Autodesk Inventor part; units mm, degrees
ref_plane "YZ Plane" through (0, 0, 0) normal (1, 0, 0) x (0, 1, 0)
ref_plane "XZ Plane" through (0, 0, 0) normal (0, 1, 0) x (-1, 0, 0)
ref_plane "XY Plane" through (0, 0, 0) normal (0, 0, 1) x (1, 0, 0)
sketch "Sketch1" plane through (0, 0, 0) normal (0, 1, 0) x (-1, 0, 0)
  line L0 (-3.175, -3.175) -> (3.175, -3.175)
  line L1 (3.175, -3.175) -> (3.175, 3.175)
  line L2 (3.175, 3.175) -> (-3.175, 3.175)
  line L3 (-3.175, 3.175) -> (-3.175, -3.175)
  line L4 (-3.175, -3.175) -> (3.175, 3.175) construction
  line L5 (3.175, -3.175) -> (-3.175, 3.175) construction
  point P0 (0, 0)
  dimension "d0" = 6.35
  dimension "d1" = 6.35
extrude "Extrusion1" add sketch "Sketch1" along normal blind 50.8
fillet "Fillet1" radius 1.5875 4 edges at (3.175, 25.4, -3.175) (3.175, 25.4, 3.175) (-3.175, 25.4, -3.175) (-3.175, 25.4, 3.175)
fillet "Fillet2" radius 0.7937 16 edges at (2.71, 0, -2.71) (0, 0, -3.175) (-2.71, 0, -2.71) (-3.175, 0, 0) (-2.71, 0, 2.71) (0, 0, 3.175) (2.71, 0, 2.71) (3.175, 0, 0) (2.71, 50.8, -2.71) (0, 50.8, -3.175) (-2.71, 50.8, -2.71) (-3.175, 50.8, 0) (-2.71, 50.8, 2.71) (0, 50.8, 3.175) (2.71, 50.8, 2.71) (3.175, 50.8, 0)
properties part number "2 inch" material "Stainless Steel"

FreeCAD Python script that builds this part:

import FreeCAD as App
import Part
import Sketcher
Q = App.Units.Quantity


def edges_at(feature, points):
    """Names of the edges that pass closest to the given points."""
    edges = feature.Shape.Edges
    near = lambda p: min(range(len(edges)), key=lambda i: edges[i].distToShape(Part.Vertex(*p))[0])
    return sorted({f"Edge{near(p) + 1}" for p in points})

doc = App.newDocument("Part")
params = doc.addObject("Spreadsheet::Sheet", "Params")
for row, (alias, value) in enumerate([
    ("sketch1_width", "0.25 in"),
    ("pad1_length", "2 in"),
    ("fillet_radius", "0.0625 in"),
    ("fillet2_radius", "0.031248 in"),
], start=1):
    params.set(f"A{row}", alias)
    params.set(f"B{row}", "=" + value)
    params.setAlias(f"B{row}", alias)

body = doc.addObject("PartDesign::Body", "Body")

# Sketch on XZ plane
sketch1 = body.newObject("Sketcher::SketchObject", "Sketch")
sketch1.AttachmentSupport = (doc.getObject("XZ_Plane"), [""])
sketch1.MapMode = "FlatFace"
sketch1.addGeometry(Part.LineSegment(App.Vector(3, 3, 0), App.Vector(3, -3, 0)), False)
sketch1.addGeometry(Part.LineSegment(App.Vector(3, -3, 0), App.Vector(-3, -3, 0)), False)
sketch1.addGeometry(Part.LineSegment(App.Vector(-3, -3, 0), App.Vector(-3, 3, 0)), False)
sketch1.addGeometry(Part.LineSegment(App.Vector(-3, 3, 0), App.Vector(3, 3, 0)), False)
sketch1.addConstraint(Sketcher.Constraint("Coincident", 0, 2, 1, 1))
sketch1.addConstraint(Sketcher.Constraint("Coincident", 1, 2, 2, 1))
sketch1.addConstraint(Sketcher.Constraint("Coincident", 2, 2, 3, 1))
sketch1.addConstraint(Sketcher.Constraint("Coincident", 3, 2, 0, 1))
sketch1.addConstraint(Sketcher.Constraint("Vertical", 0))
sketch1.addConstraint(Sketcher.Constraint("Horizontal", 1))
sketch1.addConstraint(Sketcher.Constraint("Vertical", 2))
sketch1.addConstraint(Sketcher.Constraint("Horizontal", 3))
sketch1.addConstraint(Sketcher.Constraint("Symmetric", 0, 2, 2, 2, -1, 1))
sketch1.addConstraint(Sketcher.Constraint("Equal", 3, 0))
sketch1.addConstraint(Sketcher.Constraint("DistanceX", 1, 2, 1, 1, Q("0.25 in")))
sketch1.setExpression("Constraints[10]", "Params.sketch1_width")
pad1 = body.newObject("PartDesign::Pad", "Pad")
pad1.Profile = sketch1
pad1.setExpression("Length", "Params.pad1_length")
pad1.Reversed = True
doc.recompute()

fillet = body.newObject("PartDesign::Fillet", "Fillet")
fillet.Base = (pad1, edges_at(pad1, [
    (3.175, 25.4, -3.175),
    (3.175, 25.4, 3.175),
    (-3.175, 25.4, -3.175),
    (-3.175, 25.4, 3.175),
]))
fillet.setExpression("Radius", "Params.fillet_radius")
doc.recompute()

fillet2 = body.newObject("PartDesign::Fillet", "Fillet001")
fillet2.Base = (fillet, edges_at(fillet, [
    (2.71, 0, -2.71),
    (0, 0, -3.175),
    (-2.71, 0, -2.71),
    (-3.175, 0, 0),
    (-2.71, 0, 2.71),
    (0, 0, 3.175),
    (2.71, 0, 2.71),
    (3.175, 0, 0),
    (2.71, 50.8, -2.71),
    (0, 50.8, -3.175),
    (-2.71, 50.8, -2.71),
    (-3.175, 50.8, 0),
    (-2.71, 50.8, 2.71),
    (0, 50.8, 3.175),
    (2.71, 50.8, 2.71),
    (3.175, 50.8, 0),
]))
fillet2.setExpression("Radius", "Params.fillet2_radius")

doc.recompute()
